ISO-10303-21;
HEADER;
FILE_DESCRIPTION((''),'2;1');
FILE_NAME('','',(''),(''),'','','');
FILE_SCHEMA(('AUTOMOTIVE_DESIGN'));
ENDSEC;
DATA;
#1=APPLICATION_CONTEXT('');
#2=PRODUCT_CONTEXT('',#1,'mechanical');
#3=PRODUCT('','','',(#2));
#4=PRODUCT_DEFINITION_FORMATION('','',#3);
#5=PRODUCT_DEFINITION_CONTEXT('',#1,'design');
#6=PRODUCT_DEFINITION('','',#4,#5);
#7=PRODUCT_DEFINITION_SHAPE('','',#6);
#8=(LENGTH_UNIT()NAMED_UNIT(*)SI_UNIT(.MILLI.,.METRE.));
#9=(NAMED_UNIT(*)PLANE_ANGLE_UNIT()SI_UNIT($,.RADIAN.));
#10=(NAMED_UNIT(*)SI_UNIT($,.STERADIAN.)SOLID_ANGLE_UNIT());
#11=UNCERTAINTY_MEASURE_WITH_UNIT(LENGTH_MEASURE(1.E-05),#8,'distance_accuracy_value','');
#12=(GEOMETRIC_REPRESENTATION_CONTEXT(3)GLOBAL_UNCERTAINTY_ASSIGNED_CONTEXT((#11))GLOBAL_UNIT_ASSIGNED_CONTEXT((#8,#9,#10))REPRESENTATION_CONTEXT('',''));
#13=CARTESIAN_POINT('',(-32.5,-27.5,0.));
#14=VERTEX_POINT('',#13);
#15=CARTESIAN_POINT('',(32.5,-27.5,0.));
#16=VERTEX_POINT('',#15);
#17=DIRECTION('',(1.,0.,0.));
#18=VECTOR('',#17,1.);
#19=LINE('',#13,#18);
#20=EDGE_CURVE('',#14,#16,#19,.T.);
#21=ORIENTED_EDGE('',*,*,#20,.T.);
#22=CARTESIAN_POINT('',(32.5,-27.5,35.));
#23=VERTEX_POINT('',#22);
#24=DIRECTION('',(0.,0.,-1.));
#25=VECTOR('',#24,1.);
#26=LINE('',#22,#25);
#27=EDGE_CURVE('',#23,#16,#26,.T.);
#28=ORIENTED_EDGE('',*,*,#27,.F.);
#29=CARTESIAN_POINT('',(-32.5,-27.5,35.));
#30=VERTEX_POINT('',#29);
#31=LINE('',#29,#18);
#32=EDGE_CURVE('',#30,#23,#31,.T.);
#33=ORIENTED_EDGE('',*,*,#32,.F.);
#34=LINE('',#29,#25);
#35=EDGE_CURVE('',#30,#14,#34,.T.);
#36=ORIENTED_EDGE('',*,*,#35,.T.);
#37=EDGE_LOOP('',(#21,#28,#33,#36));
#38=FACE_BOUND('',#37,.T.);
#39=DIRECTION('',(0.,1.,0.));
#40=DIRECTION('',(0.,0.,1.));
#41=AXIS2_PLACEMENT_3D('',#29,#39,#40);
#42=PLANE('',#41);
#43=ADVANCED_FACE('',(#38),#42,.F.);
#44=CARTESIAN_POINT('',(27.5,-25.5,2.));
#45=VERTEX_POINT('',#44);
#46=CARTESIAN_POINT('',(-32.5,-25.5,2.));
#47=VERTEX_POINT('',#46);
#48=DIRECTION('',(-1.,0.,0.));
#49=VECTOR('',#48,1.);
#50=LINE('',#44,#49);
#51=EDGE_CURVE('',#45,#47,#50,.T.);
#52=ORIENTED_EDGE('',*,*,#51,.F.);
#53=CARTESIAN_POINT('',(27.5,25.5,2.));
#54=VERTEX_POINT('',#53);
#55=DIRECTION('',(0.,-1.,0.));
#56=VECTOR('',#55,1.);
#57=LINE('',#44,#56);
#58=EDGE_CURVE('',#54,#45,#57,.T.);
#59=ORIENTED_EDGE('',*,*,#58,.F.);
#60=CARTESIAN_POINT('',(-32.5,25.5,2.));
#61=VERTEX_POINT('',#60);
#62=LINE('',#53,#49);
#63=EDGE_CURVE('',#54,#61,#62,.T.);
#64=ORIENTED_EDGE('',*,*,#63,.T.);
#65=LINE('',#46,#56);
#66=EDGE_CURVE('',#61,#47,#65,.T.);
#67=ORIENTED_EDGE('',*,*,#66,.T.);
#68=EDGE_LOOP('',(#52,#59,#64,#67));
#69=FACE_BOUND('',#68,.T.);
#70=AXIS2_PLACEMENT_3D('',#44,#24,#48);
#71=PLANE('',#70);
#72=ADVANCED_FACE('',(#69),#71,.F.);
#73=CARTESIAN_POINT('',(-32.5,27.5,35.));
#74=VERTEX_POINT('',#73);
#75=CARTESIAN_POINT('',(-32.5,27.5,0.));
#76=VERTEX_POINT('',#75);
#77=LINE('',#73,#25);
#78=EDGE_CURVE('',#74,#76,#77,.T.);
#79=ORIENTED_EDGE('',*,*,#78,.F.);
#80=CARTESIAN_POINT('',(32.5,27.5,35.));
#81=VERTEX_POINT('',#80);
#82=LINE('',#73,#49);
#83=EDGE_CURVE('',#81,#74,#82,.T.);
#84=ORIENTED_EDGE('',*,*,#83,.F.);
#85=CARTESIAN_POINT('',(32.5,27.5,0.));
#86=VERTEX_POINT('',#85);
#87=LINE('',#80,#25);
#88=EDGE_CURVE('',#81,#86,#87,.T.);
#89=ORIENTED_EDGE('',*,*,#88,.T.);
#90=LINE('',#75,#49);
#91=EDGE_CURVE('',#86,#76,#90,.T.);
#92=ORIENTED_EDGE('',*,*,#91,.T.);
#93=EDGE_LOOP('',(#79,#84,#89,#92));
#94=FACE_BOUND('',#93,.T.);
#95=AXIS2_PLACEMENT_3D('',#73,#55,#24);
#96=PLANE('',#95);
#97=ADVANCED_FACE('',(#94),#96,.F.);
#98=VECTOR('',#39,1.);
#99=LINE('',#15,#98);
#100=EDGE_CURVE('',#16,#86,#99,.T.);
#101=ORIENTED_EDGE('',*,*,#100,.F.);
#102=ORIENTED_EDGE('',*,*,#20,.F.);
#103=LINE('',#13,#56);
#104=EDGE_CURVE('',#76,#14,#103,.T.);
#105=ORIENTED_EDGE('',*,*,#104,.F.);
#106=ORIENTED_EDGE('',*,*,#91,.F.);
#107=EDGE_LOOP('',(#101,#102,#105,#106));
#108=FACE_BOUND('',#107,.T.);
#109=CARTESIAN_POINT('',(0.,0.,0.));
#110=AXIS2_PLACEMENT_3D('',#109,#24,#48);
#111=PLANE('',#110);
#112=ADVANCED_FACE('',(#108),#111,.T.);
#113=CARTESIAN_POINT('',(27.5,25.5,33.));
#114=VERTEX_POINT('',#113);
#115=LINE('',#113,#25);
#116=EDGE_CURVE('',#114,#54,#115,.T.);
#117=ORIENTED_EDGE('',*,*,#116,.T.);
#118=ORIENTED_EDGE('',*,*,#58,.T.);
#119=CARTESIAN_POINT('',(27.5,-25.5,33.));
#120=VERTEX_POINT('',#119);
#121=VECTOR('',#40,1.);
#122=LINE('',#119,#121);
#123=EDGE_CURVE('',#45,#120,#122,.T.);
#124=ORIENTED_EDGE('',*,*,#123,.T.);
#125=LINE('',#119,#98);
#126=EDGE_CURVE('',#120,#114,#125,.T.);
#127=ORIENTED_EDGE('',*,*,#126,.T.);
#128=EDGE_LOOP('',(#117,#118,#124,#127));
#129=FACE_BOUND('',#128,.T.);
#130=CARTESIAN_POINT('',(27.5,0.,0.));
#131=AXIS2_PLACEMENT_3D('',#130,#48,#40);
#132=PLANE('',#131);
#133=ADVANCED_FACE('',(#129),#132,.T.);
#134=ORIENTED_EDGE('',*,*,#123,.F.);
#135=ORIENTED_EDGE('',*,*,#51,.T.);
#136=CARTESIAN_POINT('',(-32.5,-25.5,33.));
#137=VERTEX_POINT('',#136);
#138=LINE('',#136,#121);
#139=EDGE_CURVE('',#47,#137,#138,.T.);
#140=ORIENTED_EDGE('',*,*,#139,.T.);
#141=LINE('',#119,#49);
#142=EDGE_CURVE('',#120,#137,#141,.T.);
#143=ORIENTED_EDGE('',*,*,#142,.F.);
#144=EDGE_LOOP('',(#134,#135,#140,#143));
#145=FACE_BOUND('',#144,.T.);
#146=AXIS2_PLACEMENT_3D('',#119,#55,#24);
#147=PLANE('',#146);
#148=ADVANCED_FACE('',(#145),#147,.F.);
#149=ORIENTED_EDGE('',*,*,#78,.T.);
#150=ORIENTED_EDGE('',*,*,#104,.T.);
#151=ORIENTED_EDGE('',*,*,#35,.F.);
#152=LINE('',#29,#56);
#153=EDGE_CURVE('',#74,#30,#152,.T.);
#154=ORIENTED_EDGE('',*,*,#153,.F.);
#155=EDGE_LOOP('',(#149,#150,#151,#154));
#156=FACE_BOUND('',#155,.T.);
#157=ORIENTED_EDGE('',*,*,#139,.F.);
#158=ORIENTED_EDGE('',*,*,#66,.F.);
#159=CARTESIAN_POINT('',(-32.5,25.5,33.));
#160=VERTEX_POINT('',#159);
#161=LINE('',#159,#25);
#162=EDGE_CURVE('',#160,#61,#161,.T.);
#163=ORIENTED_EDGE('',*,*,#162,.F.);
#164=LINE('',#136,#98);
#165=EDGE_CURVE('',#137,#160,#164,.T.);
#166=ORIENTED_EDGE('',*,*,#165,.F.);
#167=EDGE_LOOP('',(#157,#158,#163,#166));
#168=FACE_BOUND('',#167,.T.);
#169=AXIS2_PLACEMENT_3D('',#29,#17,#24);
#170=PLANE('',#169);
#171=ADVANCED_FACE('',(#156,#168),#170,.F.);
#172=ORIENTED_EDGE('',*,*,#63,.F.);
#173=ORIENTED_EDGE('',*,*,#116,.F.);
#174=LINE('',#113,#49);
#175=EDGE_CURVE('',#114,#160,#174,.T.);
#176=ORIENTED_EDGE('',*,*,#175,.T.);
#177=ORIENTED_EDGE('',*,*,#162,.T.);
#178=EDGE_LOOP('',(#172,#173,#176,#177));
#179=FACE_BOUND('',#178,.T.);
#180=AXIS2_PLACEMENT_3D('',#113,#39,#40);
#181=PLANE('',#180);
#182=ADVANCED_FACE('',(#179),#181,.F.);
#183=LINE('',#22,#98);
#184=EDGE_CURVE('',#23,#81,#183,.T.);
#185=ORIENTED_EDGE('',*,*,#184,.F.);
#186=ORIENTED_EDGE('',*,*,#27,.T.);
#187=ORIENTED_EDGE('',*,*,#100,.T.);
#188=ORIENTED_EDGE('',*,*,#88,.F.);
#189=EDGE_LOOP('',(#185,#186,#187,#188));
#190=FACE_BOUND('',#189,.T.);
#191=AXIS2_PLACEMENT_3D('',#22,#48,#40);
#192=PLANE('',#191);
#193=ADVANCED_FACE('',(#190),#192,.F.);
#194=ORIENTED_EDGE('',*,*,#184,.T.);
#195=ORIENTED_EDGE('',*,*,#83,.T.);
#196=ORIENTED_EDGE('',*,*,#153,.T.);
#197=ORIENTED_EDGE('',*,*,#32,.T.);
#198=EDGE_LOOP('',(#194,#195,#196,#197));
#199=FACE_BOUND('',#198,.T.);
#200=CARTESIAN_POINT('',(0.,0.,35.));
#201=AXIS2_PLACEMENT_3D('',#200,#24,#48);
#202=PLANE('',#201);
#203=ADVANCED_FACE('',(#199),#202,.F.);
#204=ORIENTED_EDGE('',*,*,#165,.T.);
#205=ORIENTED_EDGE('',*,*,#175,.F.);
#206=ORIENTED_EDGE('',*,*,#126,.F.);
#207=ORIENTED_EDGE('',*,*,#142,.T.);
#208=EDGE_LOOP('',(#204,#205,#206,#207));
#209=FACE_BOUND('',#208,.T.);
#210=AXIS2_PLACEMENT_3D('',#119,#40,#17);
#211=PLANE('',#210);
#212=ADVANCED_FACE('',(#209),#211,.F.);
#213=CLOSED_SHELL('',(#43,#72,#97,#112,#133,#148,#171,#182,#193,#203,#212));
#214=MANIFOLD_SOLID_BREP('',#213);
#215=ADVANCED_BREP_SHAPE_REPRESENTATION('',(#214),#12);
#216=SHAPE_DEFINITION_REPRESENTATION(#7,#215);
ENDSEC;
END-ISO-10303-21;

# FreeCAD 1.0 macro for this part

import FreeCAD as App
import Part
import Sketcher
from FreeCAD import Vector

doc = App.newDocument("Part")
body = doc.addObject("PartDesign::Body", "Body")

# Sketch on XY plane
sketch1 = doc.addObject("Sketcher::SketchObject", "Sketch")
body.addObject(sketch1)
sketch1.AttachmentSupport = (doc.XY_Plane, [""])
sketch1.MapMode = "FlatFace"
sketch1.addGeometry(Part.LineSegment(Vector(-32, 28, 0), Vector(-32, -28, 0)), False)
sketch1.addGeometry(Part.LineSegment(Vector(-32, -28, 0), Vector(32, -28, 0)), False)
sketch1.addGeometry(Part.LineSegment(Vector(32, -28, 0), Vector(32, 28, 0)), False)
sketch1.addGeometry(Part.LineSegment(Vector(32, 28, 0), Vector(-32, 28, 0)), False)
sketch1.addConstraint(Sketcher.Constraint("Coincident", 0, 2, 1, 1))
sketch1.addConstraint(Sketcher.Constraint("Coincident", 1, 2, 2, 1))
sketch1.addConstraint(Sketcher.Constraint("Coincident", 2, 2, 3, 1))
sketch1.addConstraint(Sketcher.Constraint("Coincident", 3, 2, 0, 1))
sketch1.addConstraint(Sketcher.Constraint("Vertical", 0))
sketch1.addConstraint(Sketcher.Constraint("Horizontal", 1))
sketch1.addConstraint(Sketcher.Constraint("Vertical", 2))
sketch1.addConstraint(Sketcher.Constraint("Horizontal", 3))
sketch1.addConstraint(Sketcher.Constraint("Symmetric", 0, 2, 2, 2, -1, 1))
sketch1.addConstraint(Sketcher.Constraint("DistanceX", 1, 1, 1, 2, 65.0))
sketch1.addConstraint(Sketcher.Constraint("DistanceY", 0, 2, 0, 1, 55.0))
pad1 = doc.addObject("PartDesign::Pad", "Pad")
body.addObject(pad1)
pad1.Profile = sketch1
pad1.Length = 35

# Sketch on YZ plane
sketch2 = doc.addObject("Sketcher::SketchObject", "Sketch001")
body.addObject(sketch2)
sketch2.AttachmentSupport = (doc.YZ_Plane, [""])
sketch2.MapMode = "FlatFace"
sketch2.AttachmentOffset = App.Placement(Vector(0, 0, -32.5), App.Rotation())
sketch2.addGeometry(Part.LineSegment(Vector(26, 2, 0), Vector(-26, 2, 0)), False)
sketch2.addGeometry(Part.LineSegment(Vector(-26, 2, 0), Vector(-26, 33, 0)), False)
sketch2.addGeometry(Part.LineSegment(Vector(-26, 33, 0), Vector(26, 33, 0)), False)
sketch2.addGeometry(Part.LineSegment(Vector(26, 33, 0), Vector(26, 2, 0)), False)
sketch2.addConstraint(Sketcher.Constraint("Coincident", 0, 2, 1, 1))
sketch2.addConstraint(Sketcher.Constraint("Coincident", 1, 2, 2, 1))
sketch2.addConstraint(Sketcher.Constraint("Coincident", 2, 2, 3, 1))
sketch2.addConstraint(Sketcher.Constraint("Coincident", 3, 2, 0, 1))
sketch2.addConstraint(Sketcher.Constraint("Horizontal", 0))
sketch2.addConstraint(Sketcher.Constraint("Vertical", 1))
sketch2.addConstraint(Sketcher.Constraint("Horizontal", 2))
sketch2.addConstraint(Sketcher.Constraint("Vertical", 3))
sketch2.addConstraint(Sketcher.Constraint("DistanceX", 0, 2, 0, 1, 51.0))
sketch2.addConstraint(Sketcher.Constraint("DistanceY", 1, 1, 1, 2, 31.0))
sketch2.addConstraint(Sketcher.Constraint("DistanceY", -1, 1, 0, 2, 2.0))
sketch2.addConstraint(Sketcher.Constraint("DistanceX", 0, 2, -1, 1, 25.5))
pocket1 = doc.addObject("PartDesign::Pocket", "Pocket")
body.addObject(pocket1)
pocket1.Profile = sketch2
pocket1.Length = 60
pocket1.Reversed = True

doc.recompute()
